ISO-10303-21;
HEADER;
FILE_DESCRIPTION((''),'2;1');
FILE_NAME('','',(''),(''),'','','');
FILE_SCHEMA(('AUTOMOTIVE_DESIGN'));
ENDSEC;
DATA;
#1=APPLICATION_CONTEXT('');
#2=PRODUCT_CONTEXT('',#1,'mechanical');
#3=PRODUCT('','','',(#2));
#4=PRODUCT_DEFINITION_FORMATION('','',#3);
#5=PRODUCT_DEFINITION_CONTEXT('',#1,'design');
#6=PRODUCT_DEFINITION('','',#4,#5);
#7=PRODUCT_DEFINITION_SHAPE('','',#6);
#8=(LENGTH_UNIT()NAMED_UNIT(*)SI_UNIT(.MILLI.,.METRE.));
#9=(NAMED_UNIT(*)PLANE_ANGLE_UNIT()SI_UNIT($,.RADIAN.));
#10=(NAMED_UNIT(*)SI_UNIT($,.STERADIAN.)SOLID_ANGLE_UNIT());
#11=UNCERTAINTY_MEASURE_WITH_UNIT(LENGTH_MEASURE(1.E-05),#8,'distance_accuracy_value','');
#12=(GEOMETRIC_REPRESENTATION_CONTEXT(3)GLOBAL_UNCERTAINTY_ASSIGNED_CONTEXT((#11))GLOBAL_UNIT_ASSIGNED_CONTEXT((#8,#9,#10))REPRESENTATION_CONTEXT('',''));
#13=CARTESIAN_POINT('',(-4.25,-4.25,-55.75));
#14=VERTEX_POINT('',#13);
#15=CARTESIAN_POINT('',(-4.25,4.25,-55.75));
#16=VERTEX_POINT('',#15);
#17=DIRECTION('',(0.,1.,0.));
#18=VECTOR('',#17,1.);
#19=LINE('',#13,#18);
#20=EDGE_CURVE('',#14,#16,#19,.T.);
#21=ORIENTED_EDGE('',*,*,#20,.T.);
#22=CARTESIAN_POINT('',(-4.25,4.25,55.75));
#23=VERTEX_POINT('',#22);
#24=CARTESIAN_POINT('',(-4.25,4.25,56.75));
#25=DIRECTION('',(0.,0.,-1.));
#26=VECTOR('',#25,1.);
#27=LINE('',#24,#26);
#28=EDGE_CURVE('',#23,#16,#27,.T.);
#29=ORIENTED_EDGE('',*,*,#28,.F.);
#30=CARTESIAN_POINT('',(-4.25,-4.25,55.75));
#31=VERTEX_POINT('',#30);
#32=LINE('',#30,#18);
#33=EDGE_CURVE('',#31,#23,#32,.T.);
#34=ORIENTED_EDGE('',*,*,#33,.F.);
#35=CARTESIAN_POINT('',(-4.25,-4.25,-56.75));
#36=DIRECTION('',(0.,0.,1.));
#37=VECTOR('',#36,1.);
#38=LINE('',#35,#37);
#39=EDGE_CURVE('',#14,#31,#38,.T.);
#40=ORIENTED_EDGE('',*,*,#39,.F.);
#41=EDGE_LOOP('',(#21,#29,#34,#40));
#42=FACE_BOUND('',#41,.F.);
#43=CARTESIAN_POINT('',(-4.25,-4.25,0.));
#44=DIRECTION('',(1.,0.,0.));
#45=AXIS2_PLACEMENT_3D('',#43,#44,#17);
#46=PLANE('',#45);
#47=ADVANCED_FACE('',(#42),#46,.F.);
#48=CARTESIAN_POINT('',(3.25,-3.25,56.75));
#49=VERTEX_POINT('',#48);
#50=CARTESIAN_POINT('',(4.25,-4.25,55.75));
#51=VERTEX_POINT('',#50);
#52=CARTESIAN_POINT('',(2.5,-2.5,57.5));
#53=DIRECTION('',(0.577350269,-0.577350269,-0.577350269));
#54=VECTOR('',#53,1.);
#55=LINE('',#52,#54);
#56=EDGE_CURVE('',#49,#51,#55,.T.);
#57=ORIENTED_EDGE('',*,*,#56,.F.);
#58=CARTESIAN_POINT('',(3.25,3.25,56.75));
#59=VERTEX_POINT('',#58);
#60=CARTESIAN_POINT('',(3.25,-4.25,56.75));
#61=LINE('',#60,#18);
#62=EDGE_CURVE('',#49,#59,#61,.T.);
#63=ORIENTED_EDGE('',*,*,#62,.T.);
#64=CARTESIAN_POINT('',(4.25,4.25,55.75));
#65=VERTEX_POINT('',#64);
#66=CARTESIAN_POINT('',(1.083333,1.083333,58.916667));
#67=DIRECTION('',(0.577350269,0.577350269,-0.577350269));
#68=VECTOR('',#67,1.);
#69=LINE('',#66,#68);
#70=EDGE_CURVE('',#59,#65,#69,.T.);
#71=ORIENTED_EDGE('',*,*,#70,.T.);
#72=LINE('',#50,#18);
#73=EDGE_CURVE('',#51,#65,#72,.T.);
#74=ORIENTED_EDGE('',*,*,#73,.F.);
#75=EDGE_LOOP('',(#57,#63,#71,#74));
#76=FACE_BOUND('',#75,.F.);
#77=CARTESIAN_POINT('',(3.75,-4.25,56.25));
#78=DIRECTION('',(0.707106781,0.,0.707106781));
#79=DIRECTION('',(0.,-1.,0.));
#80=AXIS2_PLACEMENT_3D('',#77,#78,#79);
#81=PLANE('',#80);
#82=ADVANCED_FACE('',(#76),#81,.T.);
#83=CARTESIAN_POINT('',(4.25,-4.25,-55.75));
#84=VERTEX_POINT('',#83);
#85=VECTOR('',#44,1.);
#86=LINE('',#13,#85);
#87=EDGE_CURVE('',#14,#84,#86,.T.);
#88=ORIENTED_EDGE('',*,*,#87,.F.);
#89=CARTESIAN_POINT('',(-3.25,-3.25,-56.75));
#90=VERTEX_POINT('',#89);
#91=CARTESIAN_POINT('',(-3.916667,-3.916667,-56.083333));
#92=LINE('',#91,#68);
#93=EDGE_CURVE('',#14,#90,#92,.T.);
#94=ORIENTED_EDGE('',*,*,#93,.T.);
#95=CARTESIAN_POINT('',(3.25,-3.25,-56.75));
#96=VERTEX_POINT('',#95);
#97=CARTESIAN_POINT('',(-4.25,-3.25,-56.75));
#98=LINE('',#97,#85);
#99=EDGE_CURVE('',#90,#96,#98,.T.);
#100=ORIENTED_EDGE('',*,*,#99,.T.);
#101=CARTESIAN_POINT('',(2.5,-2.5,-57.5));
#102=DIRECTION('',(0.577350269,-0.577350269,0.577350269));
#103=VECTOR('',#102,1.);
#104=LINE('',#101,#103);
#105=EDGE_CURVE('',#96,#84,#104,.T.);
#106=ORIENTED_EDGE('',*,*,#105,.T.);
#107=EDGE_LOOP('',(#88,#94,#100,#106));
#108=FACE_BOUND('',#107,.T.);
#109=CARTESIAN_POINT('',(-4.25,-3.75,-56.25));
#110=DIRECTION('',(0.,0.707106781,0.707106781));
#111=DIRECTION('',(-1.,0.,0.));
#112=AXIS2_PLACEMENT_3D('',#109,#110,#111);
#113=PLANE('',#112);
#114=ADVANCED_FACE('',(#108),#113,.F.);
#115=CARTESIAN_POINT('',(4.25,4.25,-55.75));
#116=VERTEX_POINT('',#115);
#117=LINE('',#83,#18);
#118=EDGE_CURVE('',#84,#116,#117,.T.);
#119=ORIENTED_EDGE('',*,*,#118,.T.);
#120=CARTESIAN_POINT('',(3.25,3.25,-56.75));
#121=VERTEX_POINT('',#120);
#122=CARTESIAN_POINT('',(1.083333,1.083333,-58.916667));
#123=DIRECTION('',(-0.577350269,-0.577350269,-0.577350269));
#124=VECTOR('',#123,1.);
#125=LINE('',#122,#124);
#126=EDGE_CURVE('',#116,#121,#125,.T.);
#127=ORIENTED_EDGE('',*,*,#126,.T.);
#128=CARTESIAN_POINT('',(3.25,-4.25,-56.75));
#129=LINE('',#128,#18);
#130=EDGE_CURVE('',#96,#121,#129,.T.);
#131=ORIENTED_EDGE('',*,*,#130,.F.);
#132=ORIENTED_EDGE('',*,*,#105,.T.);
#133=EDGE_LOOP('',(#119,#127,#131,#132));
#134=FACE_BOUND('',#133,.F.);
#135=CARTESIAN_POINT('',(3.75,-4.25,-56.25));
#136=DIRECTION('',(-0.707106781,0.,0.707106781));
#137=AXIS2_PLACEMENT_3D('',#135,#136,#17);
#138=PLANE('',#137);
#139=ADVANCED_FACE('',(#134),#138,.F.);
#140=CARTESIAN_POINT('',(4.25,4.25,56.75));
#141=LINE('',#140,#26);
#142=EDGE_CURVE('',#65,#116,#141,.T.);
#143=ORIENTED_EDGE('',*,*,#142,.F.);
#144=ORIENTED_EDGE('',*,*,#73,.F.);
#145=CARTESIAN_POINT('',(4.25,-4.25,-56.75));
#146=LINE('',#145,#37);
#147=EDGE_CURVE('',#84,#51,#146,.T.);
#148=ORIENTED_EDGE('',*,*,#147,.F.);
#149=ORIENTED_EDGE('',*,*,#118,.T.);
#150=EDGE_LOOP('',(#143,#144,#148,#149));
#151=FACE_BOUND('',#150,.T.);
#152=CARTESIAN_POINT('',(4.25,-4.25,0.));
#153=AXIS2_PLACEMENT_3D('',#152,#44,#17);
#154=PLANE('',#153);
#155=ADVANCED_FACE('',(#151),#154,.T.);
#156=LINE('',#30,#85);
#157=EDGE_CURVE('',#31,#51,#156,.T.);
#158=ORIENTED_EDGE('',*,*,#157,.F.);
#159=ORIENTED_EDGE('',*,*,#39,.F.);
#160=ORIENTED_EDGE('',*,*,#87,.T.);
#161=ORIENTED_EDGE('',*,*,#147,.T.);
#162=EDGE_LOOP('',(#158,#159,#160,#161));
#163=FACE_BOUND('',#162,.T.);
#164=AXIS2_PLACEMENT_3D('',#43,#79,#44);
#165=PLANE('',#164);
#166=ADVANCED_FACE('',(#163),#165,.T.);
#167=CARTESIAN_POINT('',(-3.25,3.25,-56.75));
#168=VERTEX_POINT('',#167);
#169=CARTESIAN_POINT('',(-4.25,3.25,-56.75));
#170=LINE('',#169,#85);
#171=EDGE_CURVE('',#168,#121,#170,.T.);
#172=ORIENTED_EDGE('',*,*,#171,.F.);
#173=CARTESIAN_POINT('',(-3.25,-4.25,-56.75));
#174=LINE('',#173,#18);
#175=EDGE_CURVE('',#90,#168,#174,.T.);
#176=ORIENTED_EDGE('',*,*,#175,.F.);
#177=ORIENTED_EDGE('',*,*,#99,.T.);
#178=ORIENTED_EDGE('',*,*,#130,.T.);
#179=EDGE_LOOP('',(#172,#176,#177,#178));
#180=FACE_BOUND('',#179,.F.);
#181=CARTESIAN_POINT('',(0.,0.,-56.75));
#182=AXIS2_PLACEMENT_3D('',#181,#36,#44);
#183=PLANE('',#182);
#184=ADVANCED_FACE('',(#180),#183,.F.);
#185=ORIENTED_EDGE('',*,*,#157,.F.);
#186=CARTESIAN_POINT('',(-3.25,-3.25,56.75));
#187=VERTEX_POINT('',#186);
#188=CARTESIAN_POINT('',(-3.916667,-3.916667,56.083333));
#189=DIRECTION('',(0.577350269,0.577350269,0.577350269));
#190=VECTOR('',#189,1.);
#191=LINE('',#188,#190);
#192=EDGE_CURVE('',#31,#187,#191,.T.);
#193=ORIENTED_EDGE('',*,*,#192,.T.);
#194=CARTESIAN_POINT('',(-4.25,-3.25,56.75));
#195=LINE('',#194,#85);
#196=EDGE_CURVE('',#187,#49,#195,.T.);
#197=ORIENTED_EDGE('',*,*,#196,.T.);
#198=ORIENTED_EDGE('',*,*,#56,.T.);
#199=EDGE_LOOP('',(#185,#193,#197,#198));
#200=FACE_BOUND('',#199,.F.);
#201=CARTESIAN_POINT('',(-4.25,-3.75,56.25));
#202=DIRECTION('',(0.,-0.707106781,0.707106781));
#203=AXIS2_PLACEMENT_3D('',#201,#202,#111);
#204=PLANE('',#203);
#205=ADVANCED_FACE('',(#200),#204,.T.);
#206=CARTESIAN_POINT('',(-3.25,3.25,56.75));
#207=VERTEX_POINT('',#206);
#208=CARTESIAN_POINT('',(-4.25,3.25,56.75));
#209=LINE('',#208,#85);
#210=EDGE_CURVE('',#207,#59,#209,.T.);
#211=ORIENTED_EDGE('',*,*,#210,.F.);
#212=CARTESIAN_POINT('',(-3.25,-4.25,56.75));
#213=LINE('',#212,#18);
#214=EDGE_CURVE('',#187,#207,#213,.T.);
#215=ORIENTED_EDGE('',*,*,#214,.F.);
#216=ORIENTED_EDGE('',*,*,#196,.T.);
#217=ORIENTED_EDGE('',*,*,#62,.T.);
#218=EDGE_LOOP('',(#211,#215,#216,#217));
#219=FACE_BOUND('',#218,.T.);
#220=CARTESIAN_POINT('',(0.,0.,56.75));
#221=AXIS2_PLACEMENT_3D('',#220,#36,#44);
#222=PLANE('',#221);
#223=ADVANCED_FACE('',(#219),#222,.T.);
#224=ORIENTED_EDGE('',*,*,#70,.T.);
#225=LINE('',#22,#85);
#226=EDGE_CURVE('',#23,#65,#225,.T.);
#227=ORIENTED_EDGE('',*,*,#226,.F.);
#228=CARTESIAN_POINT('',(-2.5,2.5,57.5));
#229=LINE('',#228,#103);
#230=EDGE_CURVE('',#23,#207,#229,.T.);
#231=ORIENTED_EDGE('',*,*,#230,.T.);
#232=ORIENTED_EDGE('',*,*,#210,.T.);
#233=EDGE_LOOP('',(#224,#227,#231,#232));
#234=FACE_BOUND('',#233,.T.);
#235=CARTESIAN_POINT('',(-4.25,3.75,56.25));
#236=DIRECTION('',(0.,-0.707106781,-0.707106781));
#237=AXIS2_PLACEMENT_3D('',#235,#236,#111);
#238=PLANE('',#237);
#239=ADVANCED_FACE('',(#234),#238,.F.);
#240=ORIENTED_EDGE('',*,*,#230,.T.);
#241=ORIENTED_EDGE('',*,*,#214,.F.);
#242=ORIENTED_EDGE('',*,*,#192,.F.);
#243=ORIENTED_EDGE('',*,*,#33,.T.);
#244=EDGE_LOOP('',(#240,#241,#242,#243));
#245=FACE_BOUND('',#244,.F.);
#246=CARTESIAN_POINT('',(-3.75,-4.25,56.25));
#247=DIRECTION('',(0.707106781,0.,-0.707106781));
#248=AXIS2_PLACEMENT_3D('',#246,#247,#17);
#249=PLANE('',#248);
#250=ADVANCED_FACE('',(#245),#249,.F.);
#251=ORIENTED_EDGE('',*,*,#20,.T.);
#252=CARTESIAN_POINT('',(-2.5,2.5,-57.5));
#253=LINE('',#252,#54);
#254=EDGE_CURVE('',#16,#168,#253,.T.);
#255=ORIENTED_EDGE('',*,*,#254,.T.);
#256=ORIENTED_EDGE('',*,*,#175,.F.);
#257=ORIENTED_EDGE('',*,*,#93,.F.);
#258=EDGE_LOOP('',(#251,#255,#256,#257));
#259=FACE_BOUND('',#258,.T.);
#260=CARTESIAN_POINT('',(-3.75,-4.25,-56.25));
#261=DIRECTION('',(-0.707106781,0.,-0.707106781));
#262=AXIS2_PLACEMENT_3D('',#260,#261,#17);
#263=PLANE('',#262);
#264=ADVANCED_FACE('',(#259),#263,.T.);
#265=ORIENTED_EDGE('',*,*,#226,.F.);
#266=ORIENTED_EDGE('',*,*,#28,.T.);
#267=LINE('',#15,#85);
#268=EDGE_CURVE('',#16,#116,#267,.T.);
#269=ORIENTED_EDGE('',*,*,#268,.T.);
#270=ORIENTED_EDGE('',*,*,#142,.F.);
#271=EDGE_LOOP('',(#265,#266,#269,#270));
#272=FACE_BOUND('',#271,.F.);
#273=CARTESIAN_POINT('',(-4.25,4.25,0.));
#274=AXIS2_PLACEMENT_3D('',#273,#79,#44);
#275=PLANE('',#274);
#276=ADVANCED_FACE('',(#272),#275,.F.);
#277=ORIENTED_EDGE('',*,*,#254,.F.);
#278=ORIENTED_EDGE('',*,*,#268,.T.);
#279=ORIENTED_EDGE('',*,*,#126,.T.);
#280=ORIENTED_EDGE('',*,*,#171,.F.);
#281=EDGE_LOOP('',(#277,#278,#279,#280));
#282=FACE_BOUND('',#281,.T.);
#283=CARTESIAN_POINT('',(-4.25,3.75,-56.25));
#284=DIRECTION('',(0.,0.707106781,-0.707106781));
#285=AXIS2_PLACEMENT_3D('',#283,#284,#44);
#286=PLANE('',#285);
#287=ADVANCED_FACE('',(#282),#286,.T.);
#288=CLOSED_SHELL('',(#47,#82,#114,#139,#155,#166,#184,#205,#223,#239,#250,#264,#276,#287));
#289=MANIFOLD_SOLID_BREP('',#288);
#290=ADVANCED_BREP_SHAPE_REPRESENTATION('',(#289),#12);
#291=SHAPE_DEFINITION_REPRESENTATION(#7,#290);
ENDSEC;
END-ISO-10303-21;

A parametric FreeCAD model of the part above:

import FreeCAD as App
import Part
import Sketcher
from FreeCAD import Vector


def edges_at(feature, points):
    """Names of the edges that pass closest to the given points."""
    edges = feature.Shape.Edges
    near = lambda p: min(range(len(edges)), key=lambda i: edges[i].distToShape(Part.Vertex(*p))[0])
    return sorted({f"Edge{near(p) + 1}" for p in points})

doc = App.newDocument("Part")
body = doc.addObject("PartDesign::Body", "Body")

sketch1 = body.newObject("Sketcher::SketchObject", "Sketch")
sketch1.AttachmentSupport = (doc.getObject("XY_Plane"), [""])
sketch1.MapMode = "FlatFace"
sketch1.addGeometry(Part.LineSegment(Vector(-4.25, 4.25, 0), Vector(-4.25, -4.25, 0)), False)
sketch1.addGeometry(Part.LineSegment(Vector(-4.25, -4.25, 0), Vector(4.25, -4.25, 0)), False)
sketch1.addGeometry(Part.LineSegment(Vector(4.25, -4.25, 0), Vector(4.25, 4.25, 0)), False)
sketch1.addGeometry(Part.LineSegment(Vector(4.25, 4.25, 0), Vector(-4.25, 4.25, 0)), False)
sketch1.addConstraint(Sketcher.Constraint("Coincident", 0, 2, 1, 1))
sketch1.addConstraint(Sketcher.Constraint("Coincident", 1, 2, 2, 1))
sketch1.addConstraint(Sketcher.Constraint("Coincident", 2, 2, 3, 1))
sketch1.addConstraint(Sketcher.Constraint("Coincident", 3, 2, 0, 1))
sketch1.addConstraint(Sketcher.Constraint("Vertical", 0))
sketch1.addConstraint(Sketcher.Constraint("Horizontal", 1))
sketch1.addConstraint(Sketcher.Constraint("Vertical", 2))
sketch1.addConstraint(Sketcher.Constraint("Horizontal", 3))
sketch1.addConstraint(Sketcher.Constraint("Symmetric", 0, 2, 2, 2, -1, 1))
sketch1.addConstraint(Sketcher.Constraint("Equal", 3, 0))
sketch1.addConstraint(Sketcher.Constraint("DistanceX", 1, 1, 1, 2, 8.5))
pad1 = body.newObject("PartDesign::Pad", "Pad")
pad1.Profile = sketch1
pad1.Length = 113.5
pad1.Midplane = True
doc.recompute()

chamfer = body.newObject("PartDesign::Chamfer", "Chamfer")
chamfer.Base = (pad1, edges_at(pad1, [
    (-4.25, 0, 56.75),
    (0, -4.25, 56.75),
    (4.25, 0, 56.75),
    (0, 4.25, 56.75),
    (0, 4.25, -56.75),
    (-4.25, 0, -56.75),
    (0, -4.25, -56.75),
    (4.25, 0, -56.75),
]))
chamfer.Size = 1

doc.recompute()
